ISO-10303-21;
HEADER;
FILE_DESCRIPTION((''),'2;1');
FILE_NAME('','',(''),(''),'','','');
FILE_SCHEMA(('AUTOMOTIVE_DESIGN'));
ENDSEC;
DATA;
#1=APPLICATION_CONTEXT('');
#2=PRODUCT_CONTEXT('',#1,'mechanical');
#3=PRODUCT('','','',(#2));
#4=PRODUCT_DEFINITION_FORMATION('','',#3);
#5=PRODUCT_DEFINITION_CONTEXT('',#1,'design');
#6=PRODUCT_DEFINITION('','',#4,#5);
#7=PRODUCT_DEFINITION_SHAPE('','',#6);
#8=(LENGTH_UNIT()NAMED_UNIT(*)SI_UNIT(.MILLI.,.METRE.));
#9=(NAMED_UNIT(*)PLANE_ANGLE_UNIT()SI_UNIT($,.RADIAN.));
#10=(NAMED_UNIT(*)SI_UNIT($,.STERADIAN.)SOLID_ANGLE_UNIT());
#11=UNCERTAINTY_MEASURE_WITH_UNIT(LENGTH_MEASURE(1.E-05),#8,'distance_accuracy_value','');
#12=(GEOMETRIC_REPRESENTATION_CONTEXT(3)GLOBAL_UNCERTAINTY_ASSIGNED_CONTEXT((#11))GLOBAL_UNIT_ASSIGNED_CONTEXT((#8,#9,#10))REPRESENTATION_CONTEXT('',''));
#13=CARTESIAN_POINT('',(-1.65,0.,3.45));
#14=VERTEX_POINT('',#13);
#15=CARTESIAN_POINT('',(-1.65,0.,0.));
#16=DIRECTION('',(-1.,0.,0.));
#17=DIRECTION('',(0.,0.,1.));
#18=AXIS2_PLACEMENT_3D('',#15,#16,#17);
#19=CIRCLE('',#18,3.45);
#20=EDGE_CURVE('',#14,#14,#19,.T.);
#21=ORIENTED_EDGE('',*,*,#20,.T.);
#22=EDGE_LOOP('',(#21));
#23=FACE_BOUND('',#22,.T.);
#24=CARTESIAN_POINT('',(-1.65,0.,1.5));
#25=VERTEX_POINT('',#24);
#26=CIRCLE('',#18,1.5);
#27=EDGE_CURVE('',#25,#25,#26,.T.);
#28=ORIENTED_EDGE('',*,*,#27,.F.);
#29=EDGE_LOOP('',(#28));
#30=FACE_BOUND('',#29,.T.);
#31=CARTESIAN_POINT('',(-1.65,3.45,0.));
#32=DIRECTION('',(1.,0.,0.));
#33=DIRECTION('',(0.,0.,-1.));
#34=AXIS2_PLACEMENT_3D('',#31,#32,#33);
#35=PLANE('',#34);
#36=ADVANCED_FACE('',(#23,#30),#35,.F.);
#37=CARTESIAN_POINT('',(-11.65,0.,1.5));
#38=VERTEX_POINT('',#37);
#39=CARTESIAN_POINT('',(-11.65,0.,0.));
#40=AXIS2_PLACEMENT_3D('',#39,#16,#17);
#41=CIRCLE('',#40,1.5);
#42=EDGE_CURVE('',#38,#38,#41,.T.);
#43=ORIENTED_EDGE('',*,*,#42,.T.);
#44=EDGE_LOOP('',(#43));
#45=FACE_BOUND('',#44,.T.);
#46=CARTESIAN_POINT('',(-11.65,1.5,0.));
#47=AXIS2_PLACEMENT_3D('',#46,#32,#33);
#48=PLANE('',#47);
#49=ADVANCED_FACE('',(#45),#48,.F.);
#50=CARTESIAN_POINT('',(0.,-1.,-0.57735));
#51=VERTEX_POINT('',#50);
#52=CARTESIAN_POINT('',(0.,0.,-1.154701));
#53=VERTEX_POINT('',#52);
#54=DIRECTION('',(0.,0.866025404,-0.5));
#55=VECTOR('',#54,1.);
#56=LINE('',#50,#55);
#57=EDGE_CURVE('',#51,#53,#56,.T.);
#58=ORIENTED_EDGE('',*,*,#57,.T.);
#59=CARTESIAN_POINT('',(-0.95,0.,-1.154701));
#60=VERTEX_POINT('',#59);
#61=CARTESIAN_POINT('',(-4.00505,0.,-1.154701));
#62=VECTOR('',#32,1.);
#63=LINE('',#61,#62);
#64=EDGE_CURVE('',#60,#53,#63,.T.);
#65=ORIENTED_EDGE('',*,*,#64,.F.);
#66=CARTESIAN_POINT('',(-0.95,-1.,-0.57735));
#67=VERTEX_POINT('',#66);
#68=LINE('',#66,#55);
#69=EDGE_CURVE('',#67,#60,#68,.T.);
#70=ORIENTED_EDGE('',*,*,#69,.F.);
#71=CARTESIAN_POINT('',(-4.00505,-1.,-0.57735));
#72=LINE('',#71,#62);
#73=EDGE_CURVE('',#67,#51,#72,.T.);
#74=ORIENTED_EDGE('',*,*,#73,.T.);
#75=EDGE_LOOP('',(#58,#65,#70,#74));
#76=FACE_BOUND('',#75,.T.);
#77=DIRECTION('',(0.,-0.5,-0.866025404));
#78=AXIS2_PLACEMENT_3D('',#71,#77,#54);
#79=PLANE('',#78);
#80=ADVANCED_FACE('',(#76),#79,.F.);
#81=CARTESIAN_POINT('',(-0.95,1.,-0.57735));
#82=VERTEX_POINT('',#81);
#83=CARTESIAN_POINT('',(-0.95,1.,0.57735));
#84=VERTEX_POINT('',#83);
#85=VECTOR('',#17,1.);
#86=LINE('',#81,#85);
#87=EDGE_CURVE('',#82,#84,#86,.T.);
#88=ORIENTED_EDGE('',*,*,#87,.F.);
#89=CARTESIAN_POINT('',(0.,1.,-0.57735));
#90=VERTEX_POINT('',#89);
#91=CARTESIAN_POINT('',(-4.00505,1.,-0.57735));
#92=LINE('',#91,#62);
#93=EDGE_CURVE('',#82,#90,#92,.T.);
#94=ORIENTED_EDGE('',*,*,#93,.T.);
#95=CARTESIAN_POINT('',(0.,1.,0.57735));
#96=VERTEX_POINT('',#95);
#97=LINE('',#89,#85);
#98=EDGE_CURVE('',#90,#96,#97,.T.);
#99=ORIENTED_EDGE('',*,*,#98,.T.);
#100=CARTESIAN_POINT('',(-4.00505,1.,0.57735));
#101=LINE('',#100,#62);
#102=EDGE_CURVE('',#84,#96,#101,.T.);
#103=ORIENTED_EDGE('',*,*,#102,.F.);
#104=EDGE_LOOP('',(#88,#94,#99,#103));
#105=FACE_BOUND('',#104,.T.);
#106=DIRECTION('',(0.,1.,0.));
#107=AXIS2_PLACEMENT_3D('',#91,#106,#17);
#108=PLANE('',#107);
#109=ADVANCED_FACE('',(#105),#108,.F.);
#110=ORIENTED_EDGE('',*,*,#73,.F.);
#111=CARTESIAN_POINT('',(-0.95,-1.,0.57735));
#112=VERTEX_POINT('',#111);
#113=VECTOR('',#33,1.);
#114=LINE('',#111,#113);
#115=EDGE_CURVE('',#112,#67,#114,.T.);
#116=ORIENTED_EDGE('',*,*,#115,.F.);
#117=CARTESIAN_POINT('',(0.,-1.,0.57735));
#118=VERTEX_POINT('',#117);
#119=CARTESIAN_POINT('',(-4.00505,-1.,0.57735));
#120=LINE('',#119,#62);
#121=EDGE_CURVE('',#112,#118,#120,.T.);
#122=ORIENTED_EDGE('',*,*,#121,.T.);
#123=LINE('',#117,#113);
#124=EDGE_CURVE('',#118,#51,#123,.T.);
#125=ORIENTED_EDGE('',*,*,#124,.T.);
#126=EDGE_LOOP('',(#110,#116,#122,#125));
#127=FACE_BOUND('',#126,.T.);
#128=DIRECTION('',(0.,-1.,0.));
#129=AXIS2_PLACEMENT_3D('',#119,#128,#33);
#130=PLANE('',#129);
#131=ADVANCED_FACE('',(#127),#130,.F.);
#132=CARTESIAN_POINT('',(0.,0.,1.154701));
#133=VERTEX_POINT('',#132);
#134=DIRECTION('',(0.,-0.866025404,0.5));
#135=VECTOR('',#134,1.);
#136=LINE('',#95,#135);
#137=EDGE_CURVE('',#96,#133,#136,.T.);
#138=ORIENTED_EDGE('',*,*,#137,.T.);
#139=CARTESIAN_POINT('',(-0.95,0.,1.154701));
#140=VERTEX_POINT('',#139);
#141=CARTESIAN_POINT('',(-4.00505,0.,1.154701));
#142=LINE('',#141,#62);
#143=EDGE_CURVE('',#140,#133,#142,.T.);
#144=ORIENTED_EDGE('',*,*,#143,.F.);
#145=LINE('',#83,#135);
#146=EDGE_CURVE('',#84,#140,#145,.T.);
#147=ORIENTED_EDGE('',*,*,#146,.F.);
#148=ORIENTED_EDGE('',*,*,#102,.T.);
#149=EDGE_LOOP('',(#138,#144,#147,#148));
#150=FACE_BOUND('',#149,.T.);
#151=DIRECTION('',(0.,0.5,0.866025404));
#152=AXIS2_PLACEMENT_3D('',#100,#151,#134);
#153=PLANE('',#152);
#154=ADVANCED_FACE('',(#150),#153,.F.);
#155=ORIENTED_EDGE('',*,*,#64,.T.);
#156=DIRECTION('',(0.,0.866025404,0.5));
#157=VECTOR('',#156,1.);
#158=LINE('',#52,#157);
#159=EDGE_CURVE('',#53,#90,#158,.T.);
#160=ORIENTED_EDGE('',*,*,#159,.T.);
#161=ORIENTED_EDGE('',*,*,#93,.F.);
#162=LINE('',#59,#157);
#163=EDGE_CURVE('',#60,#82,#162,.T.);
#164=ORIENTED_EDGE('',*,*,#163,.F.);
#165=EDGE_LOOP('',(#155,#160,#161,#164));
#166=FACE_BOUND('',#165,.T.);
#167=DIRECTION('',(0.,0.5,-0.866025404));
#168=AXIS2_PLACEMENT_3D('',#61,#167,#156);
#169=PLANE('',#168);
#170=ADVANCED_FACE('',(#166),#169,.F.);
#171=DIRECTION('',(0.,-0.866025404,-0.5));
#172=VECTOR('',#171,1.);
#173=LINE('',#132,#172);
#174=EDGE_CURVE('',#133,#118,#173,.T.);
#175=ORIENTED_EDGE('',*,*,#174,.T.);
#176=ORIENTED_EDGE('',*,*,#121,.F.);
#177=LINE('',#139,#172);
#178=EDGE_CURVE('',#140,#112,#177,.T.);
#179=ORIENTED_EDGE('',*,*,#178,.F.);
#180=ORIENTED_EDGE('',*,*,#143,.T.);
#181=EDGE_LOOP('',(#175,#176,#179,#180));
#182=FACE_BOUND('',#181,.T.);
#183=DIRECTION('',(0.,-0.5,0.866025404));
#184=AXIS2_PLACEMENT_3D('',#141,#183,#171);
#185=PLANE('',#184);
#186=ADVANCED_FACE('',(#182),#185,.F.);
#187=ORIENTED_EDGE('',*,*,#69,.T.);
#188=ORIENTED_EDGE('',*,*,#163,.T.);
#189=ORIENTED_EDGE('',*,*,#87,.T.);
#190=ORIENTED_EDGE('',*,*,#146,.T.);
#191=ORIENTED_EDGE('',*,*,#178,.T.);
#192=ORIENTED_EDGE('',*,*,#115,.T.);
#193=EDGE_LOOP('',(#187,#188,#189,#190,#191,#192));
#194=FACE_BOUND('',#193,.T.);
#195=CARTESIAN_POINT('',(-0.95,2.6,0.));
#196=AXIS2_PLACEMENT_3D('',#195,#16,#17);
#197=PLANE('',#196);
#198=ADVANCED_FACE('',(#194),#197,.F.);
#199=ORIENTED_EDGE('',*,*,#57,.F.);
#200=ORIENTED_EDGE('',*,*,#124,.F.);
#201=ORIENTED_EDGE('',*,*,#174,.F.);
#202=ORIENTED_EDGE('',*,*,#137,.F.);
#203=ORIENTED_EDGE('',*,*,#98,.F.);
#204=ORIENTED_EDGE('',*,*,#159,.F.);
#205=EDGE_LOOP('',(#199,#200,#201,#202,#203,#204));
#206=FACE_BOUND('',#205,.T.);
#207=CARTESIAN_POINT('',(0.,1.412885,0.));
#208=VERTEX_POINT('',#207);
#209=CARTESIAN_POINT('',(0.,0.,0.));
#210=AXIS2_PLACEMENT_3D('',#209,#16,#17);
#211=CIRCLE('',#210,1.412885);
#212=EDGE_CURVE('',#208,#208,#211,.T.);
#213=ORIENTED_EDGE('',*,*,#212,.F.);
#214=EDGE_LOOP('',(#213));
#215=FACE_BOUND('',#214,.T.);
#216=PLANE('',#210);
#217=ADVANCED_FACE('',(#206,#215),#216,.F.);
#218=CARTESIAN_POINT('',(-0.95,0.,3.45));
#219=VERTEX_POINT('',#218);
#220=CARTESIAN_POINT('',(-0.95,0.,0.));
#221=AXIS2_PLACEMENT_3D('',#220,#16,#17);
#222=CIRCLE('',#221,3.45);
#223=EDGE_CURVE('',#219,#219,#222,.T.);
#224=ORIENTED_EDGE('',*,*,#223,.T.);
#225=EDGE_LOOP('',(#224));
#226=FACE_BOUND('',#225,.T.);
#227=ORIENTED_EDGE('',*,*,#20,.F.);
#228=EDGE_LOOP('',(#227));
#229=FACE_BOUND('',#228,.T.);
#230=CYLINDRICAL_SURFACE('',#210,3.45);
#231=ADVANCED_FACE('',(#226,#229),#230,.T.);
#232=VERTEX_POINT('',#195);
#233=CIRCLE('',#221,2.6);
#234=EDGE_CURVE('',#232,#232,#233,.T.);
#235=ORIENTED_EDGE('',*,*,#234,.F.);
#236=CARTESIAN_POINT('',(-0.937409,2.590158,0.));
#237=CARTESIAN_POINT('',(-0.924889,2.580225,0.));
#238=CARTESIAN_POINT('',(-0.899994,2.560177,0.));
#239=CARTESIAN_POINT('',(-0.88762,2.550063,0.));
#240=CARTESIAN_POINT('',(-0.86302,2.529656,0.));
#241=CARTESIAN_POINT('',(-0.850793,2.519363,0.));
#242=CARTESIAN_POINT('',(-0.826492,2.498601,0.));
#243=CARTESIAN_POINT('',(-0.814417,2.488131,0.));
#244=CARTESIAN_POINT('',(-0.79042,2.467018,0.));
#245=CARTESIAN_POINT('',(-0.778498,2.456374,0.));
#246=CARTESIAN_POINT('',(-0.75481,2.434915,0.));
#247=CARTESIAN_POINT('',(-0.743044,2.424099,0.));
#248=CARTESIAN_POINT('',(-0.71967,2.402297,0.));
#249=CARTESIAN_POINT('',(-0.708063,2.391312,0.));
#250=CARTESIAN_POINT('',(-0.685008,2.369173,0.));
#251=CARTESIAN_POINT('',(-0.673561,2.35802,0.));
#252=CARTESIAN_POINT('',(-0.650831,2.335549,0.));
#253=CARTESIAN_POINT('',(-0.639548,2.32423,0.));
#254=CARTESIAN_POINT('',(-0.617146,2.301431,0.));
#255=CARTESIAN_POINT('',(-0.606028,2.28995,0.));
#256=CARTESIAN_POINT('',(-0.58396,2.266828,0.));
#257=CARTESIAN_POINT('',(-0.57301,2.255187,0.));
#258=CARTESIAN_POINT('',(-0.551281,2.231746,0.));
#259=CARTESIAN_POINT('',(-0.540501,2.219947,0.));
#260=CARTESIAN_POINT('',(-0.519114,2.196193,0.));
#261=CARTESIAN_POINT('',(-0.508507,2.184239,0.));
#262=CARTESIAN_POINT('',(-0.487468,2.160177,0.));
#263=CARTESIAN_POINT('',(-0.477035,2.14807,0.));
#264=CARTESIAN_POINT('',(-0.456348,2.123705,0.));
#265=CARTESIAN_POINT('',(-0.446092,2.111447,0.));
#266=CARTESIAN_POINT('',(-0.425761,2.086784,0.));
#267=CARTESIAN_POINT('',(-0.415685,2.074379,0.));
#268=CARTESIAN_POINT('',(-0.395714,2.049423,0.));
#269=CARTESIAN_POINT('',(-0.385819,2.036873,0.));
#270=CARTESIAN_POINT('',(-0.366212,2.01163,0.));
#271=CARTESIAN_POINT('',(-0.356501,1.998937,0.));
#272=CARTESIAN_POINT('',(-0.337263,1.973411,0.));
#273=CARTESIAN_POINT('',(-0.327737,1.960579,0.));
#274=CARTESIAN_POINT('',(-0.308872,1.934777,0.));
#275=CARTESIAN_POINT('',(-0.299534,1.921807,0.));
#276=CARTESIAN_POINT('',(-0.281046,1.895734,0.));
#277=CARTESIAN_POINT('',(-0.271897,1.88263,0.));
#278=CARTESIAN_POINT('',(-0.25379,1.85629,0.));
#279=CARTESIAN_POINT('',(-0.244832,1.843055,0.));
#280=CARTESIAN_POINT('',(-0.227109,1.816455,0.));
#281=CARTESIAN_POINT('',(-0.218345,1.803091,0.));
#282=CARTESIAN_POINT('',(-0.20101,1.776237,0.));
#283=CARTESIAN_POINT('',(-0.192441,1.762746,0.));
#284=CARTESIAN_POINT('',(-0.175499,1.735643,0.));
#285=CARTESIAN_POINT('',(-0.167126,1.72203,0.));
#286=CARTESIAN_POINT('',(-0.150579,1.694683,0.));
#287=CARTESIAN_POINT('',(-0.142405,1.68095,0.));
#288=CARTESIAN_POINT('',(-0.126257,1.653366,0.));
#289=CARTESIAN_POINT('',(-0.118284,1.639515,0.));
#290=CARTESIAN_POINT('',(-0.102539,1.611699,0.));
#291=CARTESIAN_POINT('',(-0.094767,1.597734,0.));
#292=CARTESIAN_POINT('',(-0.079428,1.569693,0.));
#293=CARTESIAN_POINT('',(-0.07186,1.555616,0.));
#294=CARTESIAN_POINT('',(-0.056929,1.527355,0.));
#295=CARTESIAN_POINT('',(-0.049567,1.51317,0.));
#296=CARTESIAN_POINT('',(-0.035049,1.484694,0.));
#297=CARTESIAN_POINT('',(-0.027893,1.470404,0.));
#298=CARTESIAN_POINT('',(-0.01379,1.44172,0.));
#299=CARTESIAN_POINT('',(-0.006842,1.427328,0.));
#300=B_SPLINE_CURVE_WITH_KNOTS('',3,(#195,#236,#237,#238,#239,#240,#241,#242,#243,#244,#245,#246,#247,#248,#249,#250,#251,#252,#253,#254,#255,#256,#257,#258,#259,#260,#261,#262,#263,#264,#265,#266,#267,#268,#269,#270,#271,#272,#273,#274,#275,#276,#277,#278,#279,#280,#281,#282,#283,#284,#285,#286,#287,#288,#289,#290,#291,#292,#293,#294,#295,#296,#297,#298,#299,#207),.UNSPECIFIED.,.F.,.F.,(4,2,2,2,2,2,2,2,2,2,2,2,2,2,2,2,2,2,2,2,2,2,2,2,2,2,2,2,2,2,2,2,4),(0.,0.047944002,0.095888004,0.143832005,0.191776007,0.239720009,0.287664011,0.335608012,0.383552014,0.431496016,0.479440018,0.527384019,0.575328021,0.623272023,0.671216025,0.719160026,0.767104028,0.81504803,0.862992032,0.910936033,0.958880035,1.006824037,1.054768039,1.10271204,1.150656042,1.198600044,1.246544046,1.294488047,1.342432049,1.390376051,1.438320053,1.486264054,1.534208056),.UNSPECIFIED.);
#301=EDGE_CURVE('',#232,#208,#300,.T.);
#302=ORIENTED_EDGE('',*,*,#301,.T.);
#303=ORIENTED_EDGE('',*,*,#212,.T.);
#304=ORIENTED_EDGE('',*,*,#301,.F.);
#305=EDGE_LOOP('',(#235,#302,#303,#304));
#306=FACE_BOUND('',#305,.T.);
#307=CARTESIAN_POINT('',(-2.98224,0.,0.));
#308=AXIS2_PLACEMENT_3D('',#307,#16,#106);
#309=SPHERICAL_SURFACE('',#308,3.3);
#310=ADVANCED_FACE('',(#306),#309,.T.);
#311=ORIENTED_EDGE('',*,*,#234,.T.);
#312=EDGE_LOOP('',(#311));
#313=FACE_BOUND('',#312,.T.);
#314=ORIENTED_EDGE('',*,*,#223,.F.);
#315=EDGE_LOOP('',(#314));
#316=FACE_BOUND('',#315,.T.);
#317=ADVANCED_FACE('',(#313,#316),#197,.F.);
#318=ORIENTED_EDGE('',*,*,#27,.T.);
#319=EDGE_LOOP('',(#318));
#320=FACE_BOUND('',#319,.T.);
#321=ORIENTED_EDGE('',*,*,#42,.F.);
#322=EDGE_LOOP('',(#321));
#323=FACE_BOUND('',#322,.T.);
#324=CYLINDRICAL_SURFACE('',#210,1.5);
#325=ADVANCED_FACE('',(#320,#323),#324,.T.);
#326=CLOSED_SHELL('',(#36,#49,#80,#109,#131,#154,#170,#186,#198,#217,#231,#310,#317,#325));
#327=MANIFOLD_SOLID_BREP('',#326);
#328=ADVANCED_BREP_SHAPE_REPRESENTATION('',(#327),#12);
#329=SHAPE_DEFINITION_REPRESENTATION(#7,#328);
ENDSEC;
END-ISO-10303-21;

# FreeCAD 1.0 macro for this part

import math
import FreeCAD as App
import Part
import Sketcher

V = App.Vector
Q = App.Units.Quantity


def add_polygon(sketch, points):
    """Adds a closed chain of lines whose ends are joined by coincident constraints."""
    first, n = sketch.GeometryCount, len(points)
    for a, b in zip(points, points[1:] + points[:1]):
        sketch.addGeometry(Part.LineSegment(App.Vector(*a, 0), App.Vector(*b, 0)), False)
    for i in range(n):
        sketch.addConstraint(Sketcher.Constraint("Coincident", first + i, 2, first + (i + 1) % n, 1))

doc = App.newDocument("Part")
params = doc.addObject("Spreadsheet::Sheet", "Params")
for row, (alias, value) in enumerate([
    ("sketch1_radius", "3.3 mm"),
    ("sketch1_width", "10 mm"),
    ("sketch1_width2", "0.7 mm"),
    ("sketch1_height", "1.5 mm"),
    ("sketch1_width3", "11.65 mm"),
    ("revolution_angle", "360 deg"),
    ("pocket1_length", "0.95 mm"),
], start=1):
    params.set(f"A{row}", alias)
    params.set(f"B{row}", "=" + value)
    params.setAlias(f"B{row}", alias)

body = doc.addObject("PartDesign::Body", "Body")

# Sketch on XY plane
sketch1 = body.newObject("Sketcher::SketchObject", "Sketch")
sketch1.AttachmentSupport = (doc.getObject("XY_Plane"), [""])
sketch1.MapMode = "FlatFace"
sketch1.addGeometry([
    Part.LineSegment(V(0, 0, 0), V(0, 1.4, 0)),  # 0
    Part.ArcOfCircle(Part.Circle(V(-3, 0, 0), V(0, 0, 1), 3.3), math.radians(25), math.radians(52)),  # 1
    Part.LineSegment(V(-0.9, 2.6, 0), V(-0.9, 3.5, 0)),  # 2
    Part.LineSegment(V(-0.9, 3.5, 0), V(-1.6, 3.5, 0)),  # 3
    Part.LineSegment(V(-1.6, 3.5, 0), V(-1.6, 1.5, 0)),  # 4
    Part.LineSegment(V(-1.6, 1.5, 0), V(-11.7, 1.5, 0)),  # 5
    Part.LineSegment(V(-11.7, 1.5, 0), V(-11.7, 0, 0)),  # 6
    Part.LineSegment(V(-11.7, 0, 0), V(0, 0, 0)),  # 7
], False)
sketch1.addConstraint([
    Sketcher.Constraint("Coincident", 0, 2, 1, 1),
    Sketcher.Constraint("Coincident", 1, 2, 2, 1),
    Sketcher.Constraint("Coincident", 2, 2, 3, 1),
    Sketcher.Constraint("Coincident", 3, 2, 4, 1),
    Sketcher.Constraint("Coincident", 4, 2, 5, 1),
    Sketcher.Constraint("Coincident", 5, 2, 6, 1),
    Sketcher.Constraint("Coincident", 6, 2, 7, 1),
    Sketcher.Constraint("Coincident", 7, 2, 0, 1),
    Sketcher.Constraint("Vertical", 0),
    Sketcher.Constraint("Vertical", 2),
    Sketcher.Constraint("Horizontal", 3),
    Sketcher.Constraint("Vertical", 4),
    Sketcher.Constraint("Horizontal", 5),
    Sketcher.Constraint("Vertical", 6),
    Sketcher.Constraint("Horizontal", 7),
    Sketcher.Constraint("Coincident", 7, 2, -1, 1),
    Sketcher.Constraint("PointOnObject", 1, 3, -1),
    Sketcher.Constraint("Radius", 1, 3.3),
    Sketcher.Constraint("DistanceX", 5, 2, 5, 1, 10.0),
    Sketcher.Constraint("DistanceX", 3, 2, 3, 1, 0.7),
    Sketcher.Constraint("DistanceY", 6, 2, 6, 1, 1.5),
    Sketcher.Constraint("DistanceX", 7, 1, 7, 2, 11.65),
    Sketcher.Constraint("DistanceY", 2, 1, 2, 2, 0.85),
    Sketcher.Constraint("DistanceY", 4, 2, 4, 1, 1.95),
])
sketch1.setExpression("Constraints[17]", "Params.sketch1_radius")
sketch1.setExpression("Constraints[18]", "Params.sketch1_width")
sketch1.setExpression("Constraints[19]", "Params.sketch1_width2")
sketch1.setExpression("Constraints[20]", "Params.sketch1_height")
sketch1.setExpression("Constraints[21]", "Params.sketch1_width3")
revolution = body.newObject("PartDesign::Revolution", "Revolution")
revolution.Profile = sketch1
revolution.ReferenceAxis = (sketch1, ["H_Axis"])
revolution.setExpression("Angle", "Params.revolution_angle")

# Sketch on YZ plane
sketch2 = body.newObject("Sketcher::SketchObject", "Sketch001")
sketch2.AttachmentSupport = (doc.getObject("YZ_Plane"), [""])
sketch2.MapMode = "FlatFace"
add_polygon(sketch2, [(0, -1.2), (1, -0.6), (1, 0.6), (0, 1.2), (-1, 0.6), (-1, -0.6)])  # lines 0-5
sketch2.addConstraint([
    Sketcher.Constraint("Vertical", 1),
    Sketcher.Constraint("Vertical", 4),
    Sketcher.Constraint("Symmetric", 0, 2, 3, 2, -1, 1),
    Sketcher.Constraint("Symmetric", 2, 2, 5, 2, -1, 1),
    Sketcher.Constraint("PointOnObject", 2, 2, -2),
    Sketcher.Constraint("Parallel", 2, 5),
    Sketcher.Constraint("Horizontal", 1, 2, 3, 2),
    Sketcher.Constraint("Angle", 0, Q("30 deg")),
    Sketcher.Constraint("DistanceX", -1, 1, 0, 2, 1.0),
    Sketcher.Constraint("DistanceY", 1, 1, 1, 2, 1.154701),
])
pocket1 = body.newObject("PartDesign::Pocket", "Pocket")
pocket1.Profile = sketch2
pocket1.setExpression("Length", "Params.pocket1_length")

doc.recompute()
